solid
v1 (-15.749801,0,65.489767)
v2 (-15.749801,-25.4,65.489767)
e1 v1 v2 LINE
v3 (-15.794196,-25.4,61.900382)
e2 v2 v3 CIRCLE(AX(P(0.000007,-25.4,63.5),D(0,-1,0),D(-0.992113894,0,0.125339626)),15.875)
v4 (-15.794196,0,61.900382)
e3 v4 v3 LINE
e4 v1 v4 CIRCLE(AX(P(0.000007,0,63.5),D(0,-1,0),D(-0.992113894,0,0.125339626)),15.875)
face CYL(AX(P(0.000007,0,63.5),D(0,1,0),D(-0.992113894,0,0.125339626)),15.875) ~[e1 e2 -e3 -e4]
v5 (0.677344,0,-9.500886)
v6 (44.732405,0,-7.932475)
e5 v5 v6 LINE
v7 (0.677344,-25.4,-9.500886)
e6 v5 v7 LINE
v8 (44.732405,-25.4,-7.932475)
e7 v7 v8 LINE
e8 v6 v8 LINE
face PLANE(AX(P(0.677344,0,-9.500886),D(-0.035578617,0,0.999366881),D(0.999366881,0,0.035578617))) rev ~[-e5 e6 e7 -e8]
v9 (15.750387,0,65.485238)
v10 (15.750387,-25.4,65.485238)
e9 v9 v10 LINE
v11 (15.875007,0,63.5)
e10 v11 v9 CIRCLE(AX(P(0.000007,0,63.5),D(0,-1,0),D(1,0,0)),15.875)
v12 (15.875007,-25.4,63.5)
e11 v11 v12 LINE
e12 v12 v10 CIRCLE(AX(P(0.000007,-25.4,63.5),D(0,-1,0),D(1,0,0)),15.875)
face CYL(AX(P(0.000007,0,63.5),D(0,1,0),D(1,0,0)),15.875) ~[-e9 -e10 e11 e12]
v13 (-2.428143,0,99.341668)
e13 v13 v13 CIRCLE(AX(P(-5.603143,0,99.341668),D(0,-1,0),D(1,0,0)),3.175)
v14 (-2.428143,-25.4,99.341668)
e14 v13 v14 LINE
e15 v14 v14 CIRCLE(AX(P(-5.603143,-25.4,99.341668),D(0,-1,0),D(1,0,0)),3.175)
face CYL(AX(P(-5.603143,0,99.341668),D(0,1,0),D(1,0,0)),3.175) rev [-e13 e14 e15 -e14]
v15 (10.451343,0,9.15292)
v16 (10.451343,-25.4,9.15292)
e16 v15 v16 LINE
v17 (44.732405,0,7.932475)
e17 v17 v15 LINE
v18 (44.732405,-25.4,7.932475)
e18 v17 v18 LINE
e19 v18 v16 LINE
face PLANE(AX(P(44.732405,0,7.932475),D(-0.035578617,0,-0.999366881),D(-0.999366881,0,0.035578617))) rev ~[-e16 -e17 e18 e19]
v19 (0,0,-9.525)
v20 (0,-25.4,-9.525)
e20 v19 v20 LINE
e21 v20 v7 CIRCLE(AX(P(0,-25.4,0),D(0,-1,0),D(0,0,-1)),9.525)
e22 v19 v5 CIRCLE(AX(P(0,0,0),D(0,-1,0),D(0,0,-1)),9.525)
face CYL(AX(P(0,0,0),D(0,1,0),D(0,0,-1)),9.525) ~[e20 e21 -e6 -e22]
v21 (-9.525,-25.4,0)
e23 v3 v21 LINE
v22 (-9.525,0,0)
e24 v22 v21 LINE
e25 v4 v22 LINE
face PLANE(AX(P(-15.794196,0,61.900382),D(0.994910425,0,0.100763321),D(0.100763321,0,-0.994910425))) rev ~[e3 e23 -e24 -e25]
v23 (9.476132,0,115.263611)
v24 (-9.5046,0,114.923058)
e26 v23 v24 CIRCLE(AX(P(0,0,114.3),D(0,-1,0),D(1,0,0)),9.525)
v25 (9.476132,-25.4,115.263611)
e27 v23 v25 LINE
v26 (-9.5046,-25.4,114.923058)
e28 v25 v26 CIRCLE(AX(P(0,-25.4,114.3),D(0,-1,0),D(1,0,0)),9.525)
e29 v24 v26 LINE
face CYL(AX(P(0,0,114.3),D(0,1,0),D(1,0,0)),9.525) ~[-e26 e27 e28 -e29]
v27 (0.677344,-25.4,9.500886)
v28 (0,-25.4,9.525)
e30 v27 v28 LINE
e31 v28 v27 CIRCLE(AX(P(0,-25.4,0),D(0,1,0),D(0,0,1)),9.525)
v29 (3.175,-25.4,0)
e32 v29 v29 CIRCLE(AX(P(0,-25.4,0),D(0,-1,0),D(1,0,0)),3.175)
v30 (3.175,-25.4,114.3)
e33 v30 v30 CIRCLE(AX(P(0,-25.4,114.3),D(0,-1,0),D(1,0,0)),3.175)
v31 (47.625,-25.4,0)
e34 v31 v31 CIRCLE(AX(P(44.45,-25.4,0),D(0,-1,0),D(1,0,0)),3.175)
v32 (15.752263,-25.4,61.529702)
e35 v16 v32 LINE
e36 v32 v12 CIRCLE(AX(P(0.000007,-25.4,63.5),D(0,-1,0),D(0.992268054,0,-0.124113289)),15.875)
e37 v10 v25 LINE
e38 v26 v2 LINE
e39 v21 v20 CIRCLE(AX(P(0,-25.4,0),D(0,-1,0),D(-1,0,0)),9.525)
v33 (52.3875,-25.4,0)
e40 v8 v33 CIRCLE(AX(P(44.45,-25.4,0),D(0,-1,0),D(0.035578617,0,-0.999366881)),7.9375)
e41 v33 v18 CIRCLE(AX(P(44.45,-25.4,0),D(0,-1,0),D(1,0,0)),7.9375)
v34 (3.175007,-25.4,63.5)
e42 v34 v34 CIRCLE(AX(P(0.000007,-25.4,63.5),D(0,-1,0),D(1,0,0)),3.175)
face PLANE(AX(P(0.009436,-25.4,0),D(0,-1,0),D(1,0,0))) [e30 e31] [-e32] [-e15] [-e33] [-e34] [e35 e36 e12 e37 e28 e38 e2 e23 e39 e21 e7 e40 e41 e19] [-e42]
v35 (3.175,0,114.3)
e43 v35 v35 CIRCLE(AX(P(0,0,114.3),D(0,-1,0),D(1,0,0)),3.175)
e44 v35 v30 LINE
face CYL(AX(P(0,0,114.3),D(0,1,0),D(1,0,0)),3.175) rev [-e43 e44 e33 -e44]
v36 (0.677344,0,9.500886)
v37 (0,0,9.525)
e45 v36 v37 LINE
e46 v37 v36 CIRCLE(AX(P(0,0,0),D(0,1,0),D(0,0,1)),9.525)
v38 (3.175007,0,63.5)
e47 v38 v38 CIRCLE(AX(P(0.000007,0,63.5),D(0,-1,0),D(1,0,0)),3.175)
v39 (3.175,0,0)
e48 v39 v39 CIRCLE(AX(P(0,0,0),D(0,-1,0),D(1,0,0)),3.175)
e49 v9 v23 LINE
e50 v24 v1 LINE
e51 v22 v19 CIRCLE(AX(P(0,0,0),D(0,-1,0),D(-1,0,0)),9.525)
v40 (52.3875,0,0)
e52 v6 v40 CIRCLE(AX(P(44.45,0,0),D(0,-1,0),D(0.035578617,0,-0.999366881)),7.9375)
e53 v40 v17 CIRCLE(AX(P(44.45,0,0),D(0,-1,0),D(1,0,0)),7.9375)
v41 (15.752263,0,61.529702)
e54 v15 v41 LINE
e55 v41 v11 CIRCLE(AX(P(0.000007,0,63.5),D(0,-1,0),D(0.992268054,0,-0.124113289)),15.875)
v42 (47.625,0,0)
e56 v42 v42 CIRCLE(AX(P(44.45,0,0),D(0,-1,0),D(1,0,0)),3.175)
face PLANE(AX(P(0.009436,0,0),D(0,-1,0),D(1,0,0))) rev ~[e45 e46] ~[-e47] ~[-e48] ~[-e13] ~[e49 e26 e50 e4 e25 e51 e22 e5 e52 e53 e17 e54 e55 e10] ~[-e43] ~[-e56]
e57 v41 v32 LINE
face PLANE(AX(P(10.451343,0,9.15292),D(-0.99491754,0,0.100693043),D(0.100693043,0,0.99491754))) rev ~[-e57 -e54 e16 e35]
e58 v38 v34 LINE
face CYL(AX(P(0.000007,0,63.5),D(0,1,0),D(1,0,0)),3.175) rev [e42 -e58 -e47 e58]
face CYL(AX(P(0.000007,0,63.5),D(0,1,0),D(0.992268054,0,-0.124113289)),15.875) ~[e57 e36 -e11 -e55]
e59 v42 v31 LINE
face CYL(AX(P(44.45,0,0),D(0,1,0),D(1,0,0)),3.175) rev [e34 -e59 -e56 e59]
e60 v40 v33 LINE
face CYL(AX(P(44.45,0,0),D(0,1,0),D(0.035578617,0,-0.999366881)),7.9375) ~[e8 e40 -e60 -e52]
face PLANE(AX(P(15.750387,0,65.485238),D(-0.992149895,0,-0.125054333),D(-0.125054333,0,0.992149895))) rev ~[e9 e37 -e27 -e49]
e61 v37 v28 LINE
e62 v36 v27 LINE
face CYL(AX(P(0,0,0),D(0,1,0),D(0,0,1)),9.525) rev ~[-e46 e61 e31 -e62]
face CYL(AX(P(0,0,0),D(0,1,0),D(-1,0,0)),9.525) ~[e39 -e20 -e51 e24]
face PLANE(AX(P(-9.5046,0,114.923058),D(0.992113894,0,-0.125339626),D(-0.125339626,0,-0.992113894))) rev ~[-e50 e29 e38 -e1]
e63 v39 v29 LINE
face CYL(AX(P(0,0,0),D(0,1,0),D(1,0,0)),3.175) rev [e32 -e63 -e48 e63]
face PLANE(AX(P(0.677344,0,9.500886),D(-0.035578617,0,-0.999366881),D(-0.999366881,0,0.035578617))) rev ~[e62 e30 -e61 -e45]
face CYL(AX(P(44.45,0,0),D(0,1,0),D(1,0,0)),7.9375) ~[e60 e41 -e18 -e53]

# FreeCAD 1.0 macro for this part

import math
import FreeCAD as App
import Part
import Sketcher

V = App.Vector
Q = App.Units.Quantity

doc = App.newDocument("Part")
body = doc.addObject("PartDesign::Body", "Body")

sketch1 = body.newObject("Sketcher::SketchObject", "Sketch")
sketch1.AttachmentSupport = (doc.getObject("XZ_Plane"), [""])
sketch1.MapMode = "FlatFace"
sketch1.addGeometry(Part.ArcOfCircle(Part.Circle(V(0, 0, 0), V(0, 0, 1), 9.525), math.radians(-90), math.radians(-85.92213)), False)
sketch1.addGeometry(Part.LineSegment(V(0.677344, -9.500886, 0), V(44.732405, -7.932475, 0)), False)
sketch1.addGeometry(Part.ArcOfCircle(Part.Circle(V(44.45, 0, 0), V(0, 0, 1), 7.9375), math.radians(-87.961065), math.radians(0)), False)
sketch1.addGeometry(Part.ArcOfCircle(Part.Circle(V(44.45, 0, 0), V(0, 0, 1), 7.9375), math.radians(0), math.radians(87.961065)), False)
sketch1.addGeometry(Part.LineSegment(V(44.732405, 7.932475, 0), V(10.451343, 9.15292, 0)), False)
sketch1.addGeometry(Part.LineSegment(V(10.451343, 9.15292, 0), V(15.752263, 61.529702, 0)), False)
sketch1.addGeometry(Part.ArcOfCircle(Part.Circle(V(0.000007, 63.5, 0), V(0, 0, 1), 15.875), math.radians(-7.129552), math.radians(0)), False)
sketch1.addGeometry(Part.ArcOfCircle(Part.Circle(V(0.000007, 63.5, 0), V(0, 0, 1), 15.875), math.radians(0), math.radians(7.183893)), False)
sketch1.addGeometry(Part.LineSegment(V(15.750387, 65.485238, 0), V(9.476132, 115.263611, 0)), False)
sketch1.addGeometry(Part.ArcOfCircle(Part.Circle(V(0, 114.3, 0), V(0, 0, 1), 9.525), math.radians(5.806347), math.radians(176.24944)), False)
sketch1.addGeometry(Part.LineSegment(V(-9.5046, 114.923058, 0), V(-15.749801, 65.489767, 0)), False)
sketch1.addGeometry(Part.ArcOfCircle(Part.Circle(V(0.000007, 63.5, 0), V(0, 0, 1), 15.875), math.radians(172.799631), math.radians(185.783128)), False)
sketch1.addGeometry(Part.LineSegment(V(-15.794196, 61.900382, 0), V(-9.525, 0, 0)), False)
sketch1.addGeometry(Part.ArcOfCircle(Part.Circle(V(0, 0, 0), V(0, 0, 1), 9.525), math.radians(180), math.radians(270)), False)
sketch1.addGeometry(Part.Circle(V(0, 0, 0), V(0, 0, 1), 3.175), False)
sketch1.addGeometry(Part.ArcOfCircle(Part.Circle(V(0, 0, 0), V(0, 0, 1), 9.525), math.radians(85.92213), math.radians(90)), False)
sketch1.addGeometry(Part.LineSegment(V(0.677344, 9.500886, 0), V(0, 9.525, 0)), False)
sketch1.addGeometry(Part.Circle(V(44.45, 0, 0), V(0, 0, 1), 3.175), False)
sketch1.addGeometry(Part.Circle(V(0.000007, 63.5, 0), V(0, 0, 1), 3.175), False)
sketch1.addGeometry(Part.Circle(V(-5.603143, 99.341668, 0), V(0, 0, 1), 3.175), False)
sketch1.addGeometry(Part.Circle(V(0, 114.3, 0), V(0, 0, 1), 3.175), False)
sketch1.addConstraint(Sketcher.Constraint("Coincident", 0, 2, 1, 1))
sketch1.addConstraint(Sketcher.Constraint("Tangent", 1, 2, 2, 1))
sketch1.addConstraint(Sketcher.Constraint("Tangent", 2, 2, 3, 1))
sketch1.addConstraint(Sketcher.Constraint("Tangent", 3, 2, 4, 1))
sketch1.addConstraint(Sketcher.Constraint("Coincident", 4, 2, 5, 1))
sketch1.addConstraint(Sketcher.Constraint("Coincident", 5, 2, 6, 1))
sketch1.addConstraint(Sketcher.Constraint("Tangent", 6, 2, 7, 1))
sketch1.addConstraint(Sketcher.Constraint("Tangent", 7, 2, 8, 1))
sketch1.addConstraint(Sketcher.Constraint("Coincident", 8, 2, 9, 1))
sketch1.addConstraint(Sketcher.Constraint("Coincident", 9, 2, 10, 1))
sketch1.addConstraint(Sketcher.Constraint("Tangent", 10, 2, 11, 1))
sketch1.addConstraint(Sketcher.Constraint("Tangent", 11, 2, 12, 1))
sketch1.addConstraint(Sketcher.Constraint("Coincident", 12, 2, 13, 1))
sketch1.addConstraint(Sketcher.Constraint("Tangent", 13, 2, 0, 1))
sketch1.addConstraint(Sketcher.Constraint("Coincident", 15, 1, 16, 1))
sketch1.addConstraint(Sketcher.Constraint("Coincident", 16, 2, 15, 2))
sketch1.addConstraint(Sketcher.Constraint("Coincident", 0, 3, -1, 1))
sketch1.addConstraint(Sketcher.Constraint("Coincident", 14, 3, -1, 1))
sketch1.addConstraint(Sketcher.Constraint("Coincident", 15, 3, -1, 1))
sketch1.addConstraint(Sketcher.Constraint("Coincident", 11, 3, 6, 3))
sketch1.addConstraint(Sketcher.Constraint("Coincident", 17, 3, 2, 3))
sketch1.addConstraint(Sketcher.Constraint("Coincident", 18, 3, 6, 3))
sketch1.addConstraint(Sketcher.Constraint("Coincident", 20, 3, 9, 3))
sketch1.addConstraint(Sketcher.Constraint("Equal", 2, 3))
sketch1.addConstraint(Sketcher.Constraint("Equal", 6, 7))
sketch1.addConstraint(Sketcher.Constraint("Equal", 0, 9))
sketch1.addConstraint(Sketcher.Constraint("Equal", 7, 11))
sketch1.addConstraint(Sketcher.Constraint("Equal", 9, 13))
sketch1.addConstraint(Sketcher.Constraint("Equal", 13, 15))
sketch1.addConstraint(Sketcher.Constraint("Equal", 14, 17))
sketch1.addConstraint(Sketcher.Constraint("Equal", 17, 18))
sketch1.addConstraint(Sketcher.Constraint("Equal", 18, 19))
sketch1.addConstraint(Sketcher.Constraint("Equal", 19, 20))
sketch1.addConstraint(Sketcher.Constraint("Symmetric", 1, 2, 3, 2, -1))
sketch1.addConstraint(Sketcher.Constraint("PointOnObject", 9, 3, -2))
sketch1.addConstraint(Sketcher.Constraint("PointOnObject", 2, 2, -1))
sketch1.addConstraint(Sketcher.Constraint("PointOnObject", 12, 2, -1))
sketch1.addConstraint(Sketcher.Constraint("PointOnObject", 13, 2, -2))
sketch1.addConstraint(Sketcher.Constraint("PointOnObject", 16, 2, -2))
sketch1.addConstraint(Sketcher.Constraint("Parallel", 4, 16))
sketch1.addConstraint(Sketcher.Constraint("Horizontal", 18, 3, 6, 2))
sketch1.addConstraint(Sketcher.Constraint("Vertical", 0, 2, 15, 1))
sketch1.addConstraint(Sketcher.Constraint("Diameter", 14, Q("0.25 in")))
sketch1.addConstraint(Sketcher.Constraint("Radius", 0, Q("0.375 in")))
sketch1.addConstraint(Sketcher.Constraint("Radius", 2, Q("0.3125 in")))
sketch1.addConstraint(Sketcher.Constraint("Radius", 6, Q("0.625 in")))
sketch1.addConstraint(Sketcher.Constraint("DistanceY", 6, 3, 9, 3, Q("2 in")))
sketch1.addConstraint(Sketcher.Constraint("DistanceY", -1, 1, 6, 3, Q("2.5 in")))
sketch1.addConstraint(Sketcher.Constraint("DistanceX", -1, 1, 2, 3, Q("1.75 in")))
sketch1.addConstraint(Sketcher.Constraint("DistanceY", -1, 1, 5, 2, Q("61.529702 mm")))
sketch1.addConstraint(Sketcher.Constraint("DistanceX", 9, 2, -1, 1, Q("9.5046 mm")))
sketch1.addConstraint(Sketcher.Constraint("DistanceX", 10, 2, -1, 1, Q("15.749801 mm")))
sketch1.addConstraint(Sketcher.Constraint("DistanceX", 0, 2, 4, 2, Q("9.774 mm")))
sketch1.addConstraint(Sketcher.Constraint("Distance", 8, Q("50.172231 mm")))
sketch1.addConstraint(Sketcher.Constraint("DistanceY", -1, 1, 19, 3, Q("99.341668 mm")))
sketch1.addConstraint(Sketcher.Constraint("DistanceX", 19, 3, 6, 3, Q("5.603151 mm")))
pad1 = body.newObject("PartDesign::Pad", "Pad")
pad1.Profile = sketch1
pad1.Length = Q("1 in")

doc.recompute()
